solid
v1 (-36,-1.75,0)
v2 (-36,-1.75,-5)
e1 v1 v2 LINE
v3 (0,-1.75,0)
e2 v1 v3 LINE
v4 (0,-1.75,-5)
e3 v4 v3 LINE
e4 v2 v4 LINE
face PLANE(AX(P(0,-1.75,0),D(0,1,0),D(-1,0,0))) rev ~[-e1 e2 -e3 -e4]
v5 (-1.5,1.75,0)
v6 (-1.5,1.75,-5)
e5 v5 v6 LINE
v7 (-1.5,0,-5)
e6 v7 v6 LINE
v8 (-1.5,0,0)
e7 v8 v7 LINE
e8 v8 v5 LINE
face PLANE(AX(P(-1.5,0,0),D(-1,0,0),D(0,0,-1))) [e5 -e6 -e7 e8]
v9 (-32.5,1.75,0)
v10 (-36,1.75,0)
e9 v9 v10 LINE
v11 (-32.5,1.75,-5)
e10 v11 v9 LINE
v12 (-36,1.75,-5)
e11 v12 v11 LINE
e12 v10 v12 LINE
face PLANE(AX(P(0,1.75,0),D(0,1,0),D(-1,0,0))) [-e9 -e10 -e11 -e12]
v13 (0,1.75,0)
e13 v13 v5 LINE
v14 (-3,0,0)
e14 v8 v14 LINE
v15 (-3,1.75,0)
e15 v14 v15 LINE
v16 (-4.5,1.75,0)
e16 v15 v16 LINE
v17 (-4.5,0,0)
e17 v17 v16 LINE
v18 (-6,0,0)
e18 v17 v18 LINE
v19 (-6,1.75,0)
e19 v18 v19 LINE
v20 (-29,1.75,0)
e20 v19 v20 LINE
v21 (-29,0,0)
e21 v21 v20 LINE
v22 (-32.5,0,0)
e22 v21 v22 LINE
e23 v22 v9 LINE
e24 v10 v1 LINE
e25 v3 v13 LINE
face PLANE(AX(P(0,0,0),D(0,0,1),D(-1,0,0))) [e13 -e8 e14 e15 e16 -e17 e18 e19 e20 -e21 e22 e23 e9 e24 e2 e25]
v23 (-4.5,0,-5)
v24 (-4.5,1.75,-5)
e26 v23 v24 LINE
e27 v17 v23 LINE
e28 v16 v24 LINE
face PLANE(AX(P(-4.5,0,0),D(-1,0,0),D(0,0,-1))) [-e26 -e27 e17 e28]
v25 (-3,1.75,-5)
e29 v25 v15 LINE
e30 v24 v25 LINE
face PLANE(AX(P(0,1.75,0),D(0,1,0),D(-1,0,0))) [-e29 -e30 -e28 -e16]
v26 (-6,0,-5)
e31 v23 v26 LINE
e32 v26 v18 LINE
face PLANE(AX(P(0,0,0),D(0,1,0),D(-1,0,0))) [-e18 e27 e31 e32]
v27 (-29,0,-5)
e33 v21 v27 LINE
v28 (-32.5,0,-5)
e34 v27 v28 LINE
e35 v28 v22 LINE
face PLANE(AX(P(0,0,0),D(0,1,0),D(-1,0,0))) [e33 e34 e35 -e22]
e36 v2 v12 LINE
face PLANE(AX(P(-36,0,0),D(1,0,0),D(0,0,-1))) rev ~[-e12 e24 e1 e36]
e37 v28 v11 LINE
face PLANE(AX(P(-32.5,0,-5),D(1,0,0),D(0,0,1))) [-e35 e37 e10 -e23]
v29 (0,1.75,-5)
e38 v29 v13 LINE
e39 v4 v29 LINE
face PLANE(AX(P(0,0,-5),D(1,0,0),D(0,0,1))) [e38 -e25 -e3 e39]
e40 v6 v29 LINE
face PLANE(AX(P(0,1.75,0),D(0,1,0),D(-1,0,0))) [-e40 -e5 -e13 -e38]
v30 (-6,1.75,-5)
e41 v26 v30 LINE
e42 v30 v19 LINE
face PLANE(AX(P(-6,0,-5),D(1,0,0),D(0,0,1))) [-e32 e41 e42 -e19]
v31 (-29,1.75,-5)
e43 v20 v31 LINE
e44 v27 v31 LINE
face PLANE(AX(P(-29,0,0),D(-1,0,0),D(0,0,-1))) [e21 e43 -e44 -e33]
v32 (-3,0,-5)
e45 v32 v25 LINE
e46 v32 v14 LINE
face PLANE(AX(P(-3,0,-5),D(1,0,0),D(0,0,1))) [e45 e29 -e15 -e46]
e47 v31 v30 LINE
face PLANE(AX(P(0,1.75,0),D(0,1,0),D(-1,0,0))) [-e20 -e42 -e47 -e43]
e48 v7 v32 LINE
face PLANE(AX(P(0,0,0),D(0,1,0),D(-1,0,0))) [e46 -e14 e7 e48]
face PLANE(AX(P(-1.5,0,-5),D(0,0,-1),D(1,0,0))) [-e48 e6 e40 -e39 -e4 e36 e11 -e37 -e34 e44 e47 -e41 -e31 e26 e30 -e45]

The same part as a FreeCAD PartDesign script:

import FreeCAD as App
import Part
import Sketcher

V = App.Vector

doc = App.newDocument("Part")
body = doc.addObject("PartDesign::Body", "Body")
body.AllowCompound = True

sketch1 = doc.addObject("Sketcher::SketchObject", "Sketch")
body.addObject(sketch1)
sketch1.AttachmentSupport = (doc.XZ_Plane, [""])
sketch1.MapMode = "FlatFace"
sketch1.addGeometry([
    Part.LineSegment(V(-1.5, 0, 0), V(0, 0, 0)),
    Part.LineSegment(V(0, 0, 0), V(0, -5, 0)),
    Part.LineSegment(V(0, -5, 0), V(-1.5, -5, 0)),
    Part.LineSegment(V(-1.5, -5, 0), V(-1.5, 0, 0)),
    Part.LineSegment(V(-4.5, 0, 0), V(-3, 0, 0)),
    Part.LineSegment(V(-3, 0, 0), V(-3, -5, 0)),
    Part.LineSegment(V(-3, -5, 0), V(-4.5, -5, 0)),
    Part.LineSegment(V(-4.5, -5, 0), V(-4.5, 0, 0)),
    Part.LineSegment(V(-29, 0, 0), V(-6, 0, 0)),
    Part.LineSegment(V(-6, 0, 0), V(-6, -5, 0)),
    Part.LineSegment(V(-6, -5, 0), V(-29, -5, 0)),
    Part.LineSegment(V(-29, -5, 0), V(-29, 0, 0)),
    Part.LineSegment(V(-36, 0, 0), V(-32.5, 0, 0)),
    Part.LineSegment(V(-32.5, 0, 0), V(-32.5, -5, 0)),
    Part.LineSegment(V(-32.5, -5, 0), V(-36, -5, 0)),
    Part.LineSegment(V(-36, -5, 0), V(-36, 0, 0)),
], False)
sketch1.addConstraint([
    Sketcher.Constraint("Coincident", 0, 2, 1, 1),
    Sketcher.Constraint("Coincident", 1, 2, 2, 1),
    Sketcher.Constraint("Coincident", 2, 2, 3, 1),
    Sketcher.Constraint("Coincident", 3, 2, 0, 1),
    Sketcher.Constraint("Coincident", 4, 2, 5, 1),
    Sketcher.Constraint("Coincident", 5, 2, 6, 1),
    Sketcher.Constraint("Coincident", 6, 2, 7, 1),
    Sketcher.Constraint("Coincident", 7, 2, 4, 1),
    Sketcher.Constraint("Coincident", 8, 2, 9, 1),
    Sketcher.Constraint("Coincident", 9, 2, 10, 1),
    Sketcher.Constraint("Coincident", 10, 2, 11, 1),
    Sketcher.Constraint("Coincident", 11, 2, 8, 1),
    Sketcher.Constraint("Coincident", 12, 2, 13, 1),
    Sketcher.Constraint("Coincident", 13, 2, 14, 1),
    Sketcher.Constraint("Coincident", 14, 2, 15, 1),
    Sketcher.Constraint("Coincident", 15, 2, 12, 1),
    Sketcher.Constraint("Horizontal", 0),
    Sketcher.Constraint("Vertical", 1),
    Sketcher.Constraint("Horizontal", 2),
    Sketcher.Constraint("Vertical", 3),
    Sketcher.Constraint("Horizontal", 4),
    Sketcher.Constraint("Vertical", 5),
    Sketcher.Constraint("Horizontal", 6),
    Sketcher.Constraint("Vertical", 7),
    Sketcher.Constraint("Horizontal", 8),
    Sketcher.Constraint("Vertical", 9),
    Sketcher.Constraint("Horizontal", 10),
    Sketcher.Constraint("Vertical", 11),
    Sketcher.Constraint("Horizontal", 12),
    Sketcher.Constraint("Vertical", 13),
    Sketcher.Constraint("Horizontal", 14),
    Sketcher.Constraint("Vertical", 15),
    Sketcher.Constraint("Coincident", 0, 2, -1, 1),
    Sketcher.Constraint("PointOnObject", 4, 2, -1),
    Sketcher.Constraint("PointOnObject", 8, 2, -1),
    Sketcher.Constraint("PointOnObject", 12, 2, -1),
    Sketcher.Constraint("Horizontal", 2, 2, 5, 2),
    Sketcher.Constraint("Horizontal", 6, 2, 9, 2),
    Sketcher.Constraint("Horizontal", 10, 2, 13, 2),
    Sketcher.Constraint("Equal", 2, 4),
    Sketcher.Constraint("DistanceY", 1, 2, 1, 1, 5.0),
    Sketcher.Constraint("DistanceX", 0, 1, 0, 2, 1.5),
    Sketcher.Constraint("DistanceX", 12, 1, 12, 2, 3.5),
    Sketcher.Constraint("DistanceX", 14, 2, -1, 1, 36.0),
    Sketcher.Constraint("DistanceX", 4, 2, 3, 2, 1.5),
    Sketcher.Constraint("DistanceX", 8, 2, 7, 2, 1.5),
    Sketcher.Constraint("DistanceX", 12, 2, 11, 2, 3.5),
])
pad1 = doc.addObject("PartDesign::Pad", "Pad")
body.addObject(pad1)
pad1.Profile = sketch1
pad1.Length = 1.75
pad1.Reversed = True

sketch2 = doc.addObject("Sketcher::SketchObject", "Sketch001")
body.addObject(sketch2)
sketch2.AttachmentSupport = (doc.XZ_Plane, [""])
sketch2.MapMode = "FlatFace"
sketch2.addGeometry([
    Part.LineSegment(V(0, 0, 0), V(0, -5, 0)),
    Part.LineSegment(V(0, -5, 0), V(-36, -5, 0)),
    Part.LineSegment(V(-36, -5, 0), V(-36, 0, 0)),
    Part.LineSegment(V(-36, 0, 0), V(0, 0, 0)),
], False)
sketch2.addConstraint([
    Sketcher.Constraint("Coincident", 0, 2, 1, 1),
    Sketcher.Constraint("Coincident", 1, 2, 2, 1),
    Sketcher.Constraint("Coincident", 2, 2, 3, 1),
    Sketcher.Constraint("Coincident", 3, 2, 0, 1),
    Sketcher.Constraint("Vertical", 0),
    Sketcher.Constraint("Horizontal", 1),
    Sketcher.Constraint("Vertical", 2),
    Sketcher.Constraint("Horizontal", 3),
    Sketcher.Constraint("Coincident", 3, 2, -1, 1),
    Sketcher.Constraint("DistanceX", 1, 2, 1, 1, 36.0),
    Sketcher.Constraint("DistanceY", 0, 2, 0, 1, 5.0),
])
pad2 = doc.addObject("PartDesign::Pad", "Pad001")
body.addObject(pad2)
pad2.Profile = sketch2
pad2.Length = 1.75

doc.recompute()
